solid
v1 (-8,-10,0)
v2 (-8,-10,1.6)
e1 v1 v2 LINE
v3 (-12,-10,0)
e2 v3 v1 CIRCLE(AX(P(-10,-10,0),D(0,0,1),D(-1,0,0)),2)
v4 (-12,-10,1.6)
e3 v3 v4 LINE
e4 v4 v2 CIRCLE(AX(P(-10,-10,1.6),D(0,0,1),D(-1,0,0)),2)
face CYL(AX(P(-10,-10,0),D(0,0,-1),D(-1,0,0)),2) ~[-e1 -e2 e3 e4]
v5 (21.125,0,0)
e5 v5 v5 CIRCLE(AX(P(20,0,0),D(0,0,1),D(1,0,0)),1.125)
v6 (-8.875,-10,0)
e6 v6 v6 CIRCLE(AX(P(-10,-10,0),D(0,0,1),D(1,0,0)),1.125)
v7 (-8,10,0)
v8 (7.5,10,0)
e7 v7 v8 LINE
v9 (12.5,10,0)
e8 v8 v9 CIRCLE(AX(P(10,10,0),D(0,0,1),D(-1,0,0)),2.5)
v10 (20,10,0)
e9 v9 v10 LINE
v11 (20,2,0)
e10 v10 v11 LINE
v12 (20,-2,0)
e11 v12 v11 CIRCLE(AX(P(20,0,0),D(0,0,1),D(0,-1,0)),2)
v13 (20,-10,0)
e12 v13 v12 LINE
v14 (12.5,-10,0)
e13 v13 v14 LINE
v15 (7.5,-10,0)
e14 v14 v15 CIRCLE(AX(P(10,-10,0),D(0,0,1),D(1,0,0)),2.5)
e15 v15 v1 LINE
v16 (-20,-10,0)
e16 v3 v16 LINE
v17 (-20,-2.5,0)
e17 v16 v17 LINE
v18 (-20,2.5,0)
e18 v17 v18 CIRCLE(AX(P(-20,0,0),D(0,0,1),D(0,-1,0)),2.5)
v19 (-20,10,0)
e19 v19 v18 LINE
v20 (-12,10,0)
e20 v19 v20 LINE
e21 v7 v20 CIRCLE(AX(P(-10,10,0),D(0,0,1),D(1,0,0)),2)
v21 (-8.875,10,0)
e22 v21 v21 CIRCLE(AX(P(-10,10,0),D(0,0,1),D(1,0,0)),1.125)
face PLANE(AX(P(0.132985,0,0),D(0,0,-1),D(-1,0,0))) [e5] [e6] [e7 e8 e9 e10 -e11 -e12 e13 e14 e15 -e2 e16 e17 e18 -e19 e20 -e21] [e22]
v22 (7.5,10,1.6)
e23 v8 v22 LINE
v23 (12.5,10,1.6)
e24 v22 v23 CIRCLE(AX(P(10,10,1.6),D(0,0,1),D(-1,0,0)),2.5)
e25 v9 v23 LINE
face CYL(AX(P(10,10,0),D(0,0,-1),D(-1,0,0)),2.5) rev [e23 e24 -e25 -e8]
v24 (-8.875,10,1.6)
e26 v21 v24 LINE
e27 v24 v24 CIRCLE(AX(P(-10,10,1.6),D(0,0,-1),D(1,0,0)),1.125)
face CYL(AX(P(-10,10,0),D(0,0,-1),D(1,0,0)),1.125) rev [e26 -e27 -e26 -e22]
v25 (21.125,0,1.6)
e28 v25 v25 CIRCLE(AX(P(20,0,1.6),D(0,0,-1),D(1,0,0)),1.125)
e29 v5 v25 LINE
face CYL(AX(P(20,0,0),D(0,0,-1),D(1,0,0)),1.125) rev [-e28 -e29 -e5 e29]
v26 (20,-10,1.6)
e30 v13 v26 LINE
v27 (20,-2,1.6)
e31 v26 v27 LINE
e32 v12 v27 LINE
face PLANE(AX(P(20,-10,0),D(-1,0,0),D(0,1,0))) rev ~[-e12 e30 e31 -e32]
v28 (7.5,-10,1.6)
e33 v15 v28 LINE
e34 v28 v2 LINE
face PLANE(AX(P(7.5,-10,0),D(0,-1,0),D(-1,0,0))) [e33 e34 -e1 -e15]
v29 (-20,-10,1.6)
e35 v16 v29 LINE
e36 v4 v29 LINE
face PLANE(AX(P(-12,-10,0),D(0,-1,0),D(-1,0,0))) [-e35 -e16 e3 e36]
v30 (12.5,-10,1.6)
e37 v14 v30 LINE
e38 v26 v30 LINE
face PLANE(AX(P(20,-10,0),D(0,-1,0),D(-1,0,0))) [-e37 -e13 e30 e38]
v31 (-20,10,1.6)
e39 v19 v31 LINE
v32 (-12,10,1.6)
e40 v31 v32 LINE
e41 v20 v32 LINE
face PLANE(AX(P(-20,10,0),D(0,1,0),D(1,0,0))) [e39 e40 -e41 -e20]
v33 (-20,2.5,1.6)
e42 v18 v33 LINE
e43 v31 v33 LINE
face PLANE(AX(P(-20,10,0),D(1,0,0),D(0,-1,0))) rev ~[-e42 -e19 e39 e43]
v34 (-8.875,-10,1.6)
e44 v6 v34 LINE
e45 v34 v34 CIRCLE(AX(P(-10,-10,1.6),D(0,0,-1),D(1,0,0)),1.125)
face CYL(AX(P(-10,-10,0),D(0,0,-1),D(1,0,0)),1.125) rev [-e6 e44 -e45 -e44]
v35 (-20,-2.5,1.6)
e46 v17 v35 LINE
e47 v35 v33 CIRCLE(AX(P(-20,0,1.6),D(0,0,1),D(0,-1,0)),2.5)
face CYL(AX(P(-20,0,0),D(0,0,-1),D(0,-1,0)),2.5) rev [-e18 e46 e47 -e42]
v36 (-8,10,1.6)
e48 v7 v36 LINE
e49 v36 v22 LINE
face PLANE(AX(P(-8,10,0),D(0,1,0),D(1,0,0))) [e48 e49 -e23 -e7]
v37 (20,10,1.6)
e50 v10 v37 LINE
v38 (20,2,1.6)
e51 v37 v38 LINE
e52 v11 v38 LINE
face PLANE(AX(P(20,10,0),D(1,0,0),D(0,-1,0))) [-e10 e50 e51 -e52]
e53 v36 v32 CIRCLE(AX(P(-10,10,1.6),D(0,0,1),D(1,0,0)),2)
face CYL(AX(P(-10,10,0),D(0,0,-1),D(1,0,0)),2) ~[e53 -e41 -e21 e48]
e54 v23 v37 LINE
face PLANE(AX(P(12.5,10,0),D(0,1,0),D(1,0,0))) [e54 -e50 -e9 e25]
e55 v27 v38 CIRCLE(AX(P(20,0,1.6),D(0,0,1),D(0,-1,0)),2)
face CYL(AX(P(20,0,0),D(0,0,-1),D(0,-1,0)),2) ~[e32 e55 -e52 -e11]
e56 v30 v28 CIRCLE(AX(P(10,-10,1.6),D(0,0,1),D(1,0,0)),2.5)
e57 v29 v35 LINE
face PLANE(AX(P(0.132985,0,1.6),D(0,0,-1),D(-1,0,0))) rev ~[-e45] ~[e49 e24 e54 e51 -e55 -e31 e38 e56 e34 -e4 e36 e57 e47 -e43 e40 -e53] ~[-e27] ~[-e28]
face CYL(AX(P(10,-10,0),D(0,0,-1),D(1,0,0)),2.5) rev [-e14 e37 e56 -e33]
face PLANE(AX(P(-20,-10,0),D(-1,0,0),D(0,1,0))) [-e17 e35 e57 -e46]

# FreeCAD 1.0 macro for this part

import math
import FreeCAD as App
import Part
import Sketcher

doc = App.newDocument("Part")
body = doc.addObject("PartDesign::Body", "Body")

# Sketch on XY plane
sketch1 = body.newObject("Sketcher::SketchObject", "Sketch")
sketch1.AttachmentSupport = (doc.getObject("XY_Plane"), [""])
sketch1.MapMode = "FlatFace"
sketch1.addGeometry(Part.LineSegment(App.Vector(-12, 10, 0), App.Vector(-20, 10, 0)), False)
sketch1.addGeometry(Part.LineSegment(App.Vector(-20, 10, 0), App.Vector(-20, 2.5, 0)), False)
sketch1.addGeometry(Part.ArcOfCircle(Part.Circle(App.Vector(-20, 0, 0), App.Vector(0, 0, 1), 2.5), math.radians(-90), math.radians(90)), False)
sketch1.addGeometry(Part.LineSegment(App.Vector(-20, -2.5, 0), App.Vector(-20, -10, 0)), False)
sketch1.addGeometry(Part.LineSegment(App.Vector(-20, -10, 0), App.Vector(-12, -10, 0)), False)
sketch1.addGeometry(Part.ArcOfCircle(Part.Circle(App.Vector(-10, -10, 0), App.Vector(0, 0, 1), 2), math.radians(180), math.radians(360)), False)
sketch1.addGeometry(Part.LineSegment(App.Vector(-8, -10, 0), App.Vector(7.5, -10, 0)), False)
sketch1.addGeometry(Part.ArcOfCircle(Part.Circle(App.Vector(10, -10, 0), App.Vector(0, 0, 1), 2.5), math.radians(0), math.radians(180)), False)
sketch1.addGeometry(Part.LineSegment(App.Vector(12.5, -10, 0), App.Vector(20, -10, 0)), False)
sketch1.addGeometry(Part.LineSegment(App.Vector(20, -10, 0), App.Vector(20, -2, 0)), False)
sketch1.addGeometry(Part.ArcOfCircle(Part.Circle(App.Vector(20, 0, 0), App.Vector(0, 0, 1), 2), math.radians(-90), math.radians(90)), False)
sketch1.addGeometry(Part.LineSegment(App.Vector(20, 2, 0), App.Vector(20, 10, 0)), False)
sketch1.addGeometry(Part.LineSegment(App.Vector(20, 10, 0), App.Vector(12.5, 10, 0)), False)
sketch1.addGeometry(Part.ArcOfCircle(Part.Circle(App.Vector(10, 10, 0), App.Vector(0, 0, 1), 2.5), math.radians(180), math.radians(360)), False)
sketch1.addGeometry(Part.LineSegment(App.Vector(7.5, 10, 0), App.Vector(-8, 10, 0)), False)
sketch1.addGeometry(Part.ArcOfCircle(Part.Circle(App.Vector(-10, 10, 0), App.Vector(0, 0, 1), 2), math.radians(0), math.radians(180)), False)
sketch1.addConstraint(Sketcher.Constraint("Coincident", 0, 2, 1, 1))
sketch1.addConstraint(Sketcher.Constraint("Coincident", 1, 2, 2, 2))
sketch1.addConstraint(Sketcher.Constraint("Coincident", 2, 1, 3, 1))
sketch1.addConstraint(Sketcher.Constraint("Coincident", 3, 2, 4, 1))
sketch1.addConstraint(Sketcher.Constraint("Coincident", 4, 2, 5, 1))
sketch1.addConstraint(Sketcher.Constraint("Coincident", 5, 2, 6, 1))
sketch1.addConstraint(Sketcher.Constraint("Coincident", 6, 2, 7, 2))
sketch1.addConstraint(Sketcher.Constraint("Coincident", 7, 1, 8, 1))
sketch1.addConstraint(Sketcher.Constraint("Coincident", 8, 2, 9, 1))
sketch1.addConstraint(Sketcher.Constraint("Coincident", 9, 2, 10, 1))
sketch1.addConstraint(Sketcher.Constraint("Coincident", 10, 2, 11, 1))
sketch1.addConstraint(Sketcher.Constraint("Coincident", 11, 2, 12, 1))
sketch1.addConstraint(Sketcher.Constraint("Coincident", 12, 2, 13, 2))
sketch1.addConstraint(Sketcher.Constraint("Coincident", 13, 1, 14, 1))
sketch1.addConstraint(Sketcher.Constraint("Coincident", 14, 2, 15, 1))
sketch1.addConstraint(Sketcher.Constraint("Coincident", 15, 2, 0, 1))
sketch1.addConstraint(Sketcher.Constraint("Horizontal", 0))
sketch1.addConstraint(Sketcher.Constraint("Vertical", 1))
sketch1.addConstraint(Sketcher.Constraint("Vertical", 3))
sketch1.addConstraint(Sketcher.Constraint("Horizontal", 4))
sketch1.addConstraint(Sketcher.Constraint("Horizontal", 6))
sketch1.addConstraint(Sketcher.Constraint("Horizontal", 8))
sketch1.addConstraint(Sketcher.Constraint("Vertical", 9))
sketch1.addConstraint(Sketcher.Constraint("Vertical", 11))
sketch1.addConstraint(Sketcher.Constraint("Horizontal", 12))
sketch1.addConstraint(Sketcher.Constraint("Horizontal", 14))
sketch1.addConstraint(Sketcher.Constraint("Equal", 2, 7))
sketch1.addConstraint(Sketcher.Constraint("Equal", 5, 10))
sketch1.addConstraint(Sketcher.Constraint("Equal", 7, 13))
sketch1.addConstraint(Sketcher.Constraint("Equal", 10, 15))
sketch1.addConstraint(Sketcher.Constraint("Symmetric", 2, 3, 10, 3, -1, 1))
sketch1.addConstraint(Sketcher.Constraint("Symmetric", 5, 3, 13, 3, -1, 1))
sketch1.addConstraint(Sketcher.Constraint("Symmetric", 7, 3, 15, 3, -1, 1))
sketch1.addConstraint(Sketcher.Constraint("Symmetric", 0, 2, 8, 2, -1, 1))
sketch1.addConstraint(Sketcher.Constraint("Symmetric", 3, 2, 11, 2, -1, 1))
sketch1.addConstraint(Sketcher.Constraint("Symmetric", 5, 3, 7, 3, -2))
sketch1.addConstraint(Sketcher.Constraint("Symmetric", 3, 2, 8, 2, -2))
sketch1.addConstraint(Sketcher.Constraint("PointOnObject", 2, 3, -1))
sketch1.addConstraint(Sketcher.Constraint("Horizontal", 15, 3, 0, 2))
sketch1.addConstraint(Sketcher.Constraint("Horizontal", 4, 2, 5, 2))
sketch1.addConstraint(Sketcher.Constraint("Horizontal", 12, 2, 13, 1))
sketch1.addConstraint(Sketcher.Constraint("Vertical", 2, 3, 0, 2))
sketch1.addConstraint(Sketcher.Constraint("Equal", 12, 1))
sketch1.addConstraint(Sketcher.Constraint("Radius", 5, 2.0))
sketch1.addConstraint(Sketcher.Constraint("Radius", 2, 2.5))
sketch1.addConstraint(Sketcher.Constraint("DistanceX", 0, 2, 0, 1, 8.0))
sketch1.addConstraint(Sketcher.Constraint("DistanceX", 6, 1, 6, 2, 15.5))
pad1 = body.newObject("PartDesign::Pad", "Pad")
pad1.Profile = sketch1
pad1.Length = 1.6

# Sketch on XY plane
sketch2 = body.newObject("Sketcher::SketchObject", "Sketch001")
sketch2.AttachmentSupport = (doc.getObject("XY_Plane"), [""])
sketch2.MapMode = "FlatFace"
sketch2.addGeometry(Part.Circle(App.Vector(-10, 10, 0), App.Vector(0, 0, 1), 1.1), False)
sketch2.addGeometry(Part.Circle(App.Vector(-10, -10, 0), App.Vector(0, 0, 1), 1.1), False)
sketch2.addGeometry(Part.Circle(App.Vector(20, 0, 0), App.Vector(0, 0, 1), 1.1), False)
sketch2.addConstraint(Sketcher.Constraint("Equal", 0, 1))
sketch2.addConstraint(Sketcher.Constraint("Equal", 1, 2))
sketch2.addConstraint(Sketcher.Constraint("Symmetric", 0, 3, 1, 3, -1))
sketch2.addConstraint(Sketcher.Constraint("PointOnObject", 2, 3, -1))
sketch2.addConstraint(Sketcher.Constraint("Diameter", 0, 2.25))
sketch2.addConstraint(Sketcher.Constraint("DistanceX", 0, 3, -1, 1, 10.0))
sketch2.addConstraint(Sketcher.Constraint("DistanceY", -1, 1, 0, 3, 10.0))
sketch2.addConstraint(Sketcher.Constraint("DistanceX", -1, 1, 2, 3, 20.0))
pocket1 = body.newObject("PartDesign::Pocket", "Pocket")
pocket1.Profile = sketch2
pocket1.Type = "ThroughAll"
pocket1.Reversed = True

doc.recompute()
